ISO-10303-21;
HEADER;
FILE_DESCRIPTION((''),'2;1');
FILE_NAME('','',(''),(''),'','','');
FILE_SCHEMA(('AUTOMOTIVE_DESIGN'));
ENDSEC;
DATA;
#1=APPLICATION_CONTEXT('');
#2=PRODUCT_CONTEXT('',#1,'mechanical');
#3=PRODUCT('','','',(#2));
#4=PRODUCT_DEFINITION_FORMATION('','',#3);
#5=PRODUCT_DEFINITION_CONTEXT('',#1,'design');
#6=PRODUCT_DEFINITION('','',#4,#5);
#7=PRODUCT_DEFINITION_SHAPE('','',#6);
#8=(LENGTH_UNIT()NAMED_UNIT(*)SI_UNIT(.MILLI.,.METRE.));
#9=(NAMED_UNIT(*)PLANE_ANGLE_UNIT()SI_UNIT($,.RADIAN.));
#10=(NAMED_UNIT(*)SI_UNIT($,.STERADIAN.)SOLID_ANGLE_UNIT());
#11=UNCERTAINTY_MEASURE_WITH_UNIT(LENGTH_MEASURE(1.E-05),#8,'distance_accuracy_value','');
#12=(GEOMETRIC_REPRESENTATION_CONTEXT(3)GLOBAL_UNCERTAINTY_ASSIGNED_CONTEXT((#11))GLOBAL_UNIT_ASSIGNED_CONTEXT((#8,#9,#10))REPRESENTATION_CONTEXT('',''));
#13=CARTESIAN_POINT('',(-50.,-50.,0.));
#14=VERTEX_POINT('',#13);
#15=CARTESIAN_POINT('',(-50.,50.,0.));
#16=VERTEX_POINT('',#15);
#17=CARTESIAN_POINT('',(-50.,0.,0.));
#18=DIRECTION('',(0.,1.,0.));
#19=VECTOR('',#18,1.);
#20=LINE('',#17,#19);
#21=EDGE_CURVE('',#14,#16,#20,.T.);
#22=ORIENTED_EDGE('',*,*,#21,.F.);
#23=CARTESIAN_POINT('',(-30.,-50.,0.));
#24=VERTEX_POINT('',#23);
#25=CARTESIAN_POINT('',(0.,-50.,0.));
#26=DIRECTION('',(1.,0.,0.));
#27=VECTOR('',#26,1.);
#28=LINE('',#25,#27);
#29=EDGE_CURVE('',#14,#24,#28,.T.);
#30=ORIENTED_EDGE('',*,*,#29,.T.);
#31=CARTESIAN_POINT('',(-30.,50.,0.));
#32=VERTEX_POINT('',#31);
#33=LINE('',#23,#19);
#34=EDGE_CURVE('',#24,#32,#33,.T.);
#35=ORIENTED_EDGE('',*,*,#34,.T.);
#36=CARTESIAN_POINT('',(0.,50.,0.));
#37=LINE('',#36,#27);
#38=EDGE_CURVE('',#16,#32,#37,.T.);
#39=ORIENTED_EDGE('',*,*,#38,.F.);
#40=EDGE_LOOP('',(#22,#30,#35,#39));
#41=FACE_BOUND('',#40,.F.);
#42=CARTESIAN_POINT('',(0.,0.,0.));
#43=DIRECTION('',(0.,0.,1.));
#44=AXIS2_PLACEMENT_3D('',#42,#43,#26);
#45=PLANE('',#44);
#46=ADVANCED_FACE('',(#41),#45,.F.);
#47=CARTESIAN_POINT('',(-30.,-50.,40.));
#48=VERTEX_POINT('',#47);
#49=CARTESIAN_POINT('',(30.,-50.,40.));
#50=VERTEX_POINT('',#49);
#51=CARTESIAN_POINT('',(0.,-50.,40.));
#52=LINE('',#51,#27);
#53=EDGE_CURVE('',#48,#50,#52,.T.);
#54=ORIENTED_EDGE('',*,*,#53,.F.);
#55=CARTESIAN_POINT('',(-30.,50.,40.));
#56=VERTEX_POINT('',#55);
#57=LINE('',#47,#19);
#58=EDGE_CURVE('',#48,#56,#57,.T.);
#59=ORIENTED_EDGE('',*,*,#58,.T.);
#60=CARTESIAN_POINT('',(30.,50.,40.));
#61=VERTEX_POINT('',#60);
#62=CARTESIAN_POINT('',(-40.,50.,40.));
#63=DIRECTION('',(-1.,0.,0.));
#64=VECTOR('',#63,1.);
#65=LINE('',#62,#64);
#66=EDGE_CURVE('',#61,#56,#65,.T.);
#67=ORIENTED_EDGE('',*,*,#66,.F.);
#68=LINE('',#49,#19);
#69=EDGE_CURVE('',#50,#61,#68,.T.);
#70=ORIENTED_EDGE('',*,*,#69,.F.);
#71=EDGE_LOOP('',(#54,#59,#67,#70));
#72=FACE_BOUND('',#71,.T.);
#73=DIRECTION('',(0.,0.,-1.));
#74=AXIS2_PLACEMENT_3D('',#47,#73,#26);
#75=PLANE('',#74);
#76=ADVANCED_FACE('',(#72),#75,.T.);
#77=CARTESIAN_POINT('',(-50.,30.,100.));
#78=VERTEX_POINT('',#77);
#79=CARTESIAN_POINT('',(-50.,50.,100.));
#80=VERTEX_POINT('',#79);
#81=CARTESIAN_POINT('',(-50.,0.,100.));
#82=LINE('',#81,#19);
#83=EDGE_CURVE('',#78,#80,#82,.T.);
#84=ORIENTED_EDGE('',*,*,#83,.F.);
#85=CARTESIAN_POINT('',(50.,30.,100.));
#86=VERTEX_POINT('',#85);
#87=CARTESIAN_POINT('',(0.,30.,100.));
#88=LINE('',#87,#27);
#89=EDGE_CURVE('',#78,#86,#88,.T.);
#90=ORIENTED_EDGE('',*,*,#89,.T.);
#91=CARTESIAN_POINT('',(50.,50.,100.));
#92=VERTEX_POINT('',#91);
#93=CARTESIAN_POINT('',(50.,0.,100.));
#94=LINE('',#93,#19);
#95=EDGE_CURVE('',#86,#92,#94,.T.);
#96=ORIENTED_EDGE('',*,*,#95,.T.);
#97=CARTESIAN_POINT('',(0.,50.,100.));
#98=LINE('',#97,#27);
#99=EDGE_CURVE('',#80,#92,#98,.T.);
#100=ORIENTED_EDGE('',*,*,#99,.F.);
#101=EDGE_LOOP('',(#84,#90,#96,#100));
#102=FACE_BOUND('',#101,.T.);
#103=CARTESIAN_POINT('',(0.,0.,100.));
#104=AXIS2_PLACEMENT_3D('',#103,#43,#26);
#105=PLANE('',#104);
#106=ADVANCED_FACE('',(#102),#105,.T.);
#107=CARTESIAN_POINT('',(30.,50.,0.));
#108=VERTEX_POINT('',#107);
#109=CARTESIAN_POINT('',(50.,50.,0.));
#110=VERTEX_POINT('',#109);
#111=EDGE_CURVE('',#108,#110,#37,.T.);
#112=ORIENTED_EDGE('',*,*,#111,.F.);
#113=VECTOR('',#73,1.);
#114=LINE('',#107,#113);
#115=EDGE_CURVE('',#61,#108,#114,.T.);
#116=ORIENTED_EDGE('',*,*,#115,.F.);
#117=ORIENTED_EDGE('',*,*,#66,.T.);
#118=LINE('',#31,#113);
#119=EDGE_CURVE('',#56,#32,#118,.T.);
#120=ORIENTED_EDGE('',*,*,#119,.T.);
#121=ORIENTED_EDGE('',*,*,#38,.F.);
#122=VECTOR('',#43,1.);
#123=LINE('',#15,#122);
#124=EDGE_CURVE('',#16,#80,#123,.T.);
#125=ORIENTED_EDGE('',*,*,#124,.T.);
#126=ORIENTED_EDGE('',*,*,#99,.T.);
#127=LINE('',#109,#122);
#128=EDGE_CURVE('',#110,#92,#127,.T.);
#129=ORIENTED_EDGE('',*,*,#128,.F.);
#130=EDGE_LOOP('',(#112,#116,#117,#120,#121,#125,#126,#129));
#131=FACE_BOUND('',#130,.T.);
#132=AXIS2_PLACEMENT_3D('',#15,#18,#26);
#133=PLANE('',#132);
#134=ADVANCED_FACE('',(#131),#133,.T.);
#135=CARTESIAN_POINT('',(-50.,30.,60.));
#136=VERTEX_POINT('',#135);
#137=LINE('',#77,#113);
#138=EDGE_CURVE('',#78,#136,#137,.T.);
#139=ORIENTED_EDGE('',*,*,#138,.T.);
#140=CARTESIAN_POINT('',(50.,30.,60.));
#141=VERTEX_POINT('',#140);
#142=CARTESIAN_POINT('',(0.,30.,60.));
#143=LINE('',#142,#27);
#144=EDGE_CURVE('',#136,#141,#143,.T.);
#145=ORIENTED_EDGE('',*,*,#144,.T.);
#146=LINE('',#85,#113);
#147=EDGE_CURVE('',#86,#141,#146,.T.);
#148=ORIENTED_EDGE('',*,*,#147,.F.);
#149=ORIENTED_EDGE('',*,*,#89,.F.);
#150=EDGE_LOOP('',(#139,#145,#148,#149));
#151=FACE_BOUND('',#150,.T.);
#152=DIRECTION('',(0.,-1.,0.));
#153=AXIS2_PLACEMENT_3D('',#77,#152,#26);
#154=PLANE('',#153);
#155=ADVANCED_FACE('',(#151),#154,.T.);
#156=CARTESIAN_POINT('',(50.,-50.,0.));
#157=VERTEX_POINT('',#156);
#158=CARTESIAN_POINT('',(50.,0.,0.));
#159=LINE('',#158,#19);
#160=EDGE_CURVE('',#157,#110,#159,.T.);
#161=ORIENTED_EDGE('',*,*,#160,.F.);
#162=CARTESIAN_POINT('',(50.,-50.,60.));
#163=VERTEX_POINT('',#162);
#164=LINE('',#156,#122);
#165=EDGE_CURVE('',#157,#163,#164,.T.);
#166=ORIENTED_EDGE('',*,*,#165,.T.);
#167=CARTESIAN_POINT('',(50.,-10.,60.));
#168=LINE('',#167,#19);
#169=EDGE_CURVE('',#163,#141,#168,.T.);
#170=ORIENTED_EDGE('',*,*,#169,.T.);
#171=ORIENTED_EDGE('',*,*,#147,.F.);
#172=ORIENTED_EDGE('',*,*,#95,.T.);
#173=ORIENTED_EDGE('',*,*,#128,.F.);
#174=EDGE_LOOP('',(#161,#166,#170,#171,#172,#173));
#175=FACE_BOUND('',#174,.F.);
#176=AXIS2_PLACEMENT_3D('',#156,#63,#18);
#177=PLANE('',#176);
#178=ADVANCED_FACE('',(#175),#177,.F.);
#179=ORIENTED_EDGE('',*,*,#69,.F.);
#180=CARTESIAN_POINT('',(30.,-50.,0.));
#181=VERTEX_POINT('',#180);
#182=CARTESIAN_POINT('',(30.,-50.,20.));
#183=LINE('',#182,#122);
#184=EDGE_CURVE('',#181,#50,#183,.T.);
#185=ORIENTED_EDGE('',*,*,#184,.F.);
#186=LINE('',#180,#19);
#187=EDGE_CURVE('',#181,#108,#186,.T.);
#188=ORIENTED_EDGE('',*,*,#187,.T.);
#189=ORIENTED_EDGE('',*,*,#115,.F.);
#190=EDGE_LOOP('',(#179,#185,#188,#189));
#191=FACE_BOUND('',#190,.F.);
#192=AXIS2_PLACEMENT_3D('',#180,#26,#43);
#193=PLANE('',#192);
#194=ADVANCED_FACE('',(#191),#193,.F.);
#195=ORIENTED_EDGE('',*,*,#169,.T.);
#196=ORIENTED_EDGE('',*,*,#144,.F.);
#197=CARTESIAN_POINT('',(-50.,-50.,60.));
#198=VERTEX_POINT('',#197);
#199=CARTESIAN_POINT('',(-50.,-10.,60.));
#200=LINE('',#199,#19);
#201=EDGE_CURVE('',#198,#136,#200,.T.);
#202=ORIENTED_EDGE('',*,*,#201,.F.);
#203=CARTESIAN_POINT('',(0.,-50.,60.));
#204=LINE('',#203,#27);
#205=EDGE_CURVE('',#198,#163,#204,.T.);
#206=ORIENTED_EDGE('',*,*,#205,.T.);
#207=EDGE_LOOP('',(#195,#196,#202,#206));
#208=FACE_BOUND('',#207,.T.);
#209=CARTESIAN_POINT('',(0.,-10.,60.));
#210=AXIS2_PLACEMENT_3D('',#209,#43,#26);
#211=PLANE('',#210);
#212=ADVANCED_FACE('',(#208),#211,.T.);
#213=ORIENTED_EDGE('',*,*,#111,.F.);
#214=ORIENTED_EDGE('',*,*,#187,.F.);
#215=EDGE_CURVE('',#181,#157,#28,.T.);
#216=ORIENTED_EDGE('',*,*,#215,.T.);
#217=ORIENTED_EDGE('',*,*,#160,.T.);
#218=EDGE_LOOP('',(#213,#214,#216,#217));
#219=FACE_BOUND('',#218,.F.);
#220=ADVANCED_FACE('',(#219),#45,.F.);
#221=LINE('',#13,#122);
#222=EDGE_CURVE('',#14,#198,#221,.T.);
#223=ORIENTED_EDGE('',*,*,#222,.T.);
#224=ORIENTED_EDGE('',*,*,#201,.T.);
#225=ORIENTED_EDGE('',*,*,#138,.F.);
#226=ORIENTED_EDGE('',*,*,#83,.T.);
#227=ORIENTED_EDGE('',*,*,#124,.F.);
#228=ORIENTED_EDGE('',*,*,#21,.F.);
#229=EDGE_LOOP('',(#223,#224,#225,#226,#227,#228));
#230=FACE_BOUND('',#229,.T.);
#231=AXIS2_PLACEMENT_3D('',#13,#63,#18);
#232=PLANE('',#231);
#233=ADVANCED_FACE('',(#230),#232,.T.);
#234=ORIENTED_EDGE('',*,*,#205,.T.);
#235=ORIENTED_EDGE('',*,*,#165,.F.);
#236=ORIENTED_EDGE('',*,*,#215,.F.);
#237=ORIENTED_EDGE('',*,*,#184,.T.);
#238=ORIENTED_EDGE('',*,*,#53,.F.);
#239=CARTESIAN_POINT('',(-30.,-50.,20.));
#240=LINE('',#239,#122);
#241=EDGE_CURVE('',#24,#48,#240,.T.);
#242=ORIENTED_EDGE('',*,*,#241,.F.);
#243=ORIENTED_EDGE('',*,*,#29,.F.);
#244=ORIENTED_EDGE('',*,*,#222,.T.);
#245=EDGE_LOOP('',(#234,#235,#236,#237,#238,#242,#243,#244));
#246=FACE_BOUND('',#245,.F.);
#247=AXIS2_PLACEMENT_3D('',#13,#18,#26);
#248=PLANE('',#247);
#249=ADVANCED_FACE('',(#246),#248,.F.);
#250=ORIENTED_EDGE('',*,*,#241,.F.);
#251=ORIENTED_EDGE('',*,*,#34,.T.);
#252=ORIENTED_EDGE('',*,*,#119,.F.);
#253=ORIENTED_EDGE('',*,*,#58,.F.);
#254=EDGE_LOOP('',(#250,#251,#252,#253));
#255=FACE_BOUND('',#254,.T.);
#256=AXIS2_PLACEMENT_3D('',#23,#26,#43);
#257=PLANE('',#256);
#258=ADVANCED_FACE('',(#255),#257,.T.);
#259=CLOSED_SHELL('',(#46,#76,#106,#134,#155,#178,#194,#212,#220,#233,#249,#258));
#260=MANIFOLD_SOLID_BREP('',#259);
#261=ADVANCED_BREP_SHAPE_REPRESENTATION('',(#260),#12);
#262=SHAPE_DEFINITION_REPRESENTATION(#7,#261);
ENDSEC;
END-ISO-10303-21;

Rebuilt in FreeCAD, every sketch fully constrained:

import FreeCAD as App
import Part
import Sketcher
from FreeCAD import Vector
Q = App.Units.Quantity

doc = App.newDocument("Part")
params = doc.addObject("Spreadsheet::Sheet", "Params")
for row, (alias, value) in enumerate([
    ("sketch1_width", "100 mm"),
    ("pad1_length", "100 mm"),
    ("sketch2_width", "100 mm"),
    ("sketch2_height", "80 mm"),
    ("pocket1_length", "40 mm"),
    ("sketch3_width", "60 mm"),
    ("sketch3_height", "40 mm"),
    ("pocket2_length", "2000 mm"),
], start=1):
    params.set(f"A{row}", alias)
    params.set(f"B{row}", "=" + value)
    params.setAlias(f"B{row}", alias)

body = doc.addObject("PartDesign::Body", "Body")

# Sketch on XY plane
sketch1 = body.newObject("Sketcher::SketchObject", "Sketch")
sketch1.AttachmentSupport = (doc.getObject("XY_Plane"), [""])
sketch1.MapMode = "FlatFace"
sketch1.addGeometry(Part.LineSegment(Vector(-50, 50, 0), Vector(-50, -50, 0)), False)
sketch1.addGeometry(Part.LineSegment(Vector(-50, -50, 0), Vector(50, -50, 0)), False)
sketch1.addGeometry(Part.LineSegment(Vector(50, -50, 0), Vector(50, 50, 0)), False)
sketch1.addGeometry(Part.LineSegment(Vector(50, 50, 0), Vector(-50, 50, 0)), False)
sketch1.addConstraint(Sketcher.Constraint("Coincident", 0, 2, 1, 1))
sketch1.addConstraint(Sketcher.Constraint("Coincident", 1, 2, 2, 1))
sketch1.addConstraint(Sketcher.Constraint("Coincident", 2, 2, 3, 1))
sketch1.addConstraint(Sketcher.Constraint("Coincident", 3, 2, 0, 1))
sketch1.addConstraint(Sketcher.Constraint("Vertical", 0))
sketch1.addConstraint(Sketcher.Constraint("Horizontal", 1))
sketch1.addConstraint(Sketcher.Constraint("Vertical", 2))
sketch1.addConstraint(Sketcher.Constraint("Horizontal", 3))
sketch1.addConstraint(Sketcher.Constraint("Symmetric", 0, 2, 2, 2, -1, 1))
sketch1.addConstraint(Sketcher.Constraint("Equal", 3, 0))
sketch1.addConstraint(Sketcher.Constraint("DistanceX", 1, 1, 1, 2, Q("100 mm")))
sketch1.setExpression("Constraints[10]", "Params.sketch1_width")
pad1 = body.newObject("PartDesign::Pad", "Pad")
pad1.Profile = sketch1
pad1.setExpression("Length", "Params.pad1_length")

# Sketch on XY plane
sketch2 = body.newObject("Sketcher::SketchObject", "Sketch001")
sketch2.AttachmentSupport = (doc.getObject("XY_Plane"), [""])
sketch2.MapMode = "FlatFace"
sketch2.AttachmentOffset = App.Placement(Vector(0, 0, 100), App.Rotation())
sketch2.addGeometry(Part.LineSegment(Vector(-50, 30, 0), Vector(-50, -50, 0)), False)
sketch2.addGeometry(Part.LineSegment(Vector(-50, -50, 0), Vector(50, -50, 0)), False)
sketch2.addGeometry(Part.LineSegment(Vector(50, -50, 0), Vector(50, 30, 0)), False)
sketch2.addGeometry(Part.LineSegment(Vector(50, 30, 0), Vector(-50, 30, 0)), False)
sketch2.addConstraint(Sketcher.Constraint("Coincident", 0, 2, 1, 1))
sketch2.addConstraint(Sketcher.Constraint("Coincident", 1, 2, 2, 1))
sketch2.addConstraint(Sketcher.Constraint("Coincident", 2, 2, 3, 1))
sketch2.addConstraint(Sketcher.Constraint("Coincident", 3, 2, 0, 1))
sketch2.addConstraint(Sketcher.Constraint("Vertical", 0))
sketch2.addConstraint(Sketcher.Constraint("Horizontal", 1))
sketch2.addConstraint(Sketcher.Constraint("Vertical", 2))
sketch2.addConstraint(Sketcher.Constraint("Horizontal", 3))
sketch2.addConstraint(Sketcher.Constraint("DistanceX", 1, 1, 1, 2, Q("100 mm")))
sketch2.addConstraint(Sketcher.Constraint("DistanceY", 0, 2, 0, 1, Q("80 mm")))
sketch2.addConstraint(Sketcher.Constraint("DistanceX", 0, 2, -1, 1, Q("50 mm")))
sketch2.addConstraint(Sketcher.Constraint("DistanceY", 0, 2, -1, 1, Q("50 mm")))
sketch2.setExpression("Constraints[8]", "Params.sketch2_width")
sketch2.setExpression("Constraints[9]", "Params.sketch2_height")
pocket1 = body.newObject("PartDesign::Pocket", "Pocket")
pocket1.Profile = sketch2
pocket1.setExpression("Length", "Params.pocket1_length")

# Sketch on XZ plane
sketch3 = body.newObject("Sketcher::SketchObject", "Sketch002")
sketch3.AttachmentSupport = (doc.getObject("XZ_Plane"), [""])
sketch3.MapMode = "FlatFace"
sketch3.AttachmentOffset = App.Placement(Vector(0, 0, 50), App.Rotation())
sketch3.addGeometry(Part.LineSegment(Vector(-30, 40, 0), Vector(-30, 0, 0)), False)
sketch3.addGeometry(Part.LineSegment(Vector(-30, 0, 0), Vector(30, 0, 0)), False)
sketch3.addGeometry(Part.LineSegment(Vector(30, 0, 0), Vector(30, 40, 0)), False)
sketch3.addGeometry(Part.LineSegment(Vector(30, 40, 0), Vector(-30, 40, 0)), False)
sketch3.addConstraint(Sketcher.Constraint("Coincident", 0, 2, 1, 1))
sketch3.addConstraint(Sketcher.Constraint("Coincident", 1, 2, 2, 1))
sketch3.addConstraint(Sketcher.Constraint("Coincident", 2, 2, 3, 1))
sketch3.addConstraint(Sketcher.Constraint("Coincident", 3, 2, 0, 1))
sketch3.addConstraint(Sketcher.Constraint("Vertical", 0))
sketch3.addConstraint(Sketcher.Constraint("Horizontal", 1))
sketch3.addConstraint(Sketcher.Constraint("Vertical", 2))
sketch3.addConstraint(Sketcher.Constraint("Horizontal", 3))
sketch3.addConstraint(Sketcher.Constraint("Symmetric", 0, 2, 1, 2, -1, 1))
sketch3.addConstraint(Sketcher.Constraint("DistanceX", 1, 1, 1, 2, Q("60 mm")))
sketch3.addConstraint(Sketcher.Constraint("DistanceY", 0, 2, 0, 1, Q("40 mm")))
sketch3.setExpression("Constraints[9]", "Params.sketch3_width")
sketch3.setExpression("Constraints[10]", "Params.sketch3_height")
pocket2 = body.newObject("PartDesign::Pocket", "Pocket001")
pocket2.Profile = sketch3
pocket2.setExpression("Length", "Params.pocket2_length")

doc.recompute()
